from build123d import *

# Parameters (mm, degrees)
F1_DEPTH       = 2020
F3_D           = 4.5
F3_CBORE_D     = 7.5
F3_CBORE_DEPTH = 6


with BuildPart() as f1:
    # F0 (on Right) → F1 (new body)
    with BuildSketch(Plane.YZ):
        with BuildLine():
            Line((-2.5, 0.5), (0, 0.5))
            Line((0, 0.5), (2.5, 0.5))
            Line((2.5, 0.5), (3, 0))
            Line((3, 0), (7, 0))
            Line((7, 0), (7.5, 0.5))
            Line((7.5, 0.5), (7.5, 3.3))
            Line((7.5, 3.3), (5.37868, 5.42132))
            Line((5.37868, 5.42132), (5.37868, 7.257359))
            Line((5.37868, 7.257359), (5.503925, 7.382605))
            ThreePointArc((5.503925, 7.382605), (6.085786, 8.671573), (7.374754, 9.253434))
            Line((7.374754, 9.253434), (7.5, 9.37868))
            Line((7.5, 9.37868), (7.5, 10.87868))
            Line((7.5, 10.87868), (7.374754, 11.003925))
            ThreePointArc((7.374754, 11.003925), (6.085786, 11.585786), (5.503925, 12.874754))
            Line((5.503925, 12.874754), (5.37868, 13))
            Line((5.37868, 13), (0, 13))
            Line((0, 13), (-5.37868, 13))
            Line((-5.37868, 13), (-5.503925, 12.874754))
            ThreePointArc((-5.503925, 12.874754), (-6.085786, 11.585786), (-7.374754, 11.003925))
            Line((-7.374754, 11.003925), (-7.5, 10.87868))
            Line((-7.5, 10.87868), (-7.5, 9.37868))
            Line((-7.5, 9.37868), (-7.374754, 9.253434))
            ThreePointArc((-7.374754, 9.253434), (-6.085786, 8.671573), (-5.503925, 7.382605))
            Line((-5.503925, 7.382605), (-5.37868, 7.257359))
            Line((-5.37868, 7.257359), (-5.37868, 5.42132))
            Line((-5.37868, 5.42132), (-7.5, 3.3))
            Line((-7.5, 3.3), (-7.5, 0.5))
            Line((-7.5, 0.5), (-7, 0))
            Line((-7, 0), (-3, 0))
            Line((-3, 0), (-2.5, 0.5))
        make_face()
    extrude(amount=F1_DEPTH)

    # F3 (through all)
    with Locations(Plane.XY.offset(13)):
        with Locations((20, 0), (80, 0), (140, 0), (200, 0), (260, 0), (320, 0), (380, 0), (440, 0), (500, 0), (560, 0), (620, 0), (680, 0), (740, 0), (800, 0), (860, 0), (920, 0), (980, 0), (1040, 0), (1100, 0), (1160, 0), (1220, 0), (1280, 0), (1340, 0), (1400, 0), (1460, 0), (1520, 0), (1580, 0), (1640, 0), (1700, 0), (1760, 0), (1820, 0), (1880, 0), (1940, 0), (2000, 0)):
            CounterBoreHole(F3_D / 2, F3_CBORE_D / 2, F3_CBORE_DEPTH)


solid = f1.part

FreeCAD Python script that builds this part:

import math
import FreeCAD as App
import Part
import Sketcher

V = App.Vector

doc = App.newDocument("Part")
body = doc.addObject("PartDesign::Body", "Body")

sketch1 = body.newObject("Sketcher::SketchObject", "Sketch")
sketch1.AttachmentSupport = (doc.getObject("YZ_Plane"), [""])
sketch1.MapMode = "FlatFace"
sketch1.addGeometry([
    Part.LineSegment(V(-2.5, 0.5, 0), V(2.5, 0.5, 0)),
    Part.LineSegment(V(2.5, 0.5, 0), V(3, 0, 0)),
    Part.LineSegment(V(3, 0, 0), V(7, 0, 0)),
    Part.LineSegment(V(7, 0, 0), V(7.5, 0.5, 0)),
    Part.LineSegment(V(7.5, 0.5, 0), V(7.5, 3.3, 0)),
    Part.LineSegment(V(7.5, 3.3, 0), V(5.38, 5.42, 0)),
    Part.LineSegment(V(5.38, 5.42, 0), V(5.38, 7.26, 0)),
    Part.LineSegment(V(5.38, 7.26, 0), V(5.5, 7.38, 0)),
    Part.ArcOfCircle(Part.Circle(V(7.5, 7.26, 0), V(0, 0, 1), 2), math.radians(94), math.radians(176)),
    Part.LineSegment(V(7.37, 9.25, 0), V(7.5, 9.38, 0)),
    Part.LineSegment(V(7.5, 9.38, 0), V(7.5, 10.88, 0)),
    Part.LineSegment(V(7.5, 10.88, 0), V(7.37, 11, 0)),
    Part.ArcOfCircle(Part.Circle(V(7.5, 13, 0), V(0, 0, 1), 2), math.radians(-176), math.radians(-94)),
    Part.LineSegment(V(5.5, 12.87, 0), V(5.38, 13, 0)),
    Part.LineSegment(V(5.38, 13, 0), V(-5.38, 13, 0)),
    Part.LineSegment(V(-5.38, 13, 0), V(-5.5, 12.87, 0)),
    Part.ArcOfCircle(Part.Circle(V(-7.5, 13, 0), V(0, 0, 1), 2), math.radians(-86), math.radians(-4)),
    Part.LineSegment(V(-7.37, 11, 0), V(-7.5, 10.88, 0)),
    Part.LineSegment(V(-7.5, 10.88, 0), V(-7.5, 9.38, 0)),
    Part.LineSegment(V(-7.5, 9.38, 0), V(-7.37, 9.25, 0)),
    Part.ArcOfCircle(Part.Circle(V(-7.5, 7.26, 0), V(0, 0, 1), 2), math.radians(4), math.radians(86)),
    Part.LineSegment(V(-5.5, 7.38, 0), V(-5.38, 7.26, 0)),
    Part.LineSegment(V(-5.38, 7.26, 0), V(-5.38, 5.42, 0)),
    Part.LineSegment(V(-5.38, 5.42, 0), V(-7.5, 3.3, 0)),
    Part.LineSegment(V(-7.5, 3.3, 0), V(-7.5, 0.5, 0)),
    Part.LineSegment(V(-7.5, 0.5, 0), V(-7, 0, 0)),
    Part.LineSegment(V(-7, 0, 0), V(-3, 0, 0)),
    Part.LineSegment(V(-3, 0, 0), V(-2.5, 0.5, 0)),
], False)
sketch1.addConstraint([
    Sketcher.Constraint("Coincident", 0, 2, 1, 1),
    Sketcher.Constraint("Coincident", 1, 2, 2, 1),
    Sketcher.Constraint("Coincident", 2, 2, 3, 1),
    Sketcher.Constraint("Coincident", 3, 2, 4, 1),
    Sketcher.Constraint("Coincident", 4, 2, 5, 1),
    Sketcher.Constraint("Coincident", 5, 2, 6, 1),
    Sketcher.Constraint("Coincident", 6, 2, 7, 1),
    Sketcher.Constraint("Coincident", 7, 2, 8, 2),
    Sketcher.Constraint("Coincident", 8, 1, 9, 1),
    Sketcher.Constraint("Coincident", 9, 2, 10, 1),
    Sketcher.Constraint("Coincident", 10, 2, 11, 1),
    Sketcher.Constraint("Coincident", 11, 2, 12, 2),
    Sketcher.Constraint("Coincident", 12, 1, 13, 1),
    Sketcher.Constraint("Coincident", 13, 2, 14, 1),
    Sketcher.Constraint("Coincident", 14, 2, 15, 1),
    Sketcher.Constraint("Coincident", 15, 2, 16, 2),
    Sketcher.Constraint("Coincident", 16, 1, 17, 1),
    Sketcher.Constraint("Coincident", 17, 2, 18, 1),
    Sketcher.Constraint("Coincident", 18, 2, 19, 1),
    Sketcher.Constraint("Coincident", 19, 2, 20, 2),
    Sketcher.Constraint("Coincident", 20, 1, 21, 1),
    Sketcher.Constraint("Coincident", 21, 2, 22, 1),
    Sketcher.Constraint("Coincident", 22, 2, 23, 1),
    Sketcher.Constraint("Coincident", 23, 2, 24, 1),
    Sketcher.Constraint("Coincident", 24, 2, 25, 1),
    Sketcher.Constraint("Coincident", 25, 2, 26, 1),
    Sketcher.Constraint("Coincident", 26, 2, 27, 1),
    Sketcher.Constraint("Coincident", 27, 2, 0, 1),
    Sketcher.Constraint("Horizontal", 0),
    Sketcher.Constraint("Horizontal", 2),
    Sketcher.Constraint("Vertical", 4),
    Sketcher.Constraint("Vertical", 6),
    Sketcher.Constraint("Vertical", 10),
    Sketcher.Constraint("Horizontal", 14),
    Sketcher.Constraint("Vertical", 18),
    Sketcher.Constraint("Vertical", 22),
    Sketcher.Constraint("Vertical", 24),
    Sketcher.Constraint("Horizontal", 26),
    Sketcher.Constraint("Equal", 8, 12),
    Sketcher.Constraint("Equal", 12, 16),
    Sketcher.Constraint("Equal", 16, 20),
    Sketcher.Constraint("Symmetric", 2, 2, 25, 2, -1, 1),
    Sketcher.Constraint("Symmetric", 12, 3, 16, 3, -2),
    Sketcher.Constraint("Symmetric", 8, 3, 20, 3, -2),
    Sketcher.Constraint("Symmetric", 10, 2, 17, 2, -2),
    Sketcher.Constraint("Symmetric", 6, 2, 21, 2, -2),
    Sketcher.Constraint("Symmetric", 4, 2, 23, 2, -2),
    Sketcher.Constraint("Symmetric", 1, 2, 26, 2, -2),
    Sketcher.Constraint("Perpendicular", 1, 3),
    Sketcher.Constraint("Perpendicular", 3, 5),
    Sketcher.Constraint("Perpendicular", 5, 9),
    Sketcher.Constraint("Perpendicular", 7, 11),
    Sketcher.Constraint("Perpendicular", 11, 15),
    Sketcher.Constraint("Perpendicular", 13, 17),
    Sketcher.Constraint("Perpendicular", 9, 19),
    Sketcher.Constraint("Perpendicular", 17, 21),
    Sketcher.Constraint("Perpendicular", 19, 23),
    Sketcher.Constraint("Perpendicular", 23, 25),
    Sketcher.Constraint("Perpendicular", 25, 27),
    Sketcher.Constraint("Horizontal", 0, 2, 3, 2),
    Sketcher.Constraint("Horizontal", 20, 3, 6, 2),
    Sketcher.Constraint("Horizontal", 16, 3, 13, 2),
    Sketcher.Constraint("Horizontal", 12, 1, 15, 2),
    Sketcher.Constraint("Horizontal", 11, 2, 16, 1),
    Sketcher.Constraint("Horizontal", 9, 2, 18, 2),
    Sketcher.Constraint("Horizontal", 8, 1, 19, 2),
    Sketcher.Constraint("Vertical", 8, 3, 12, 3),
    Sketcher.Constraint("Vertical", 12, 3, 3, 2),
    Sketcher.Constraint("Vertical", 4, 2, 9, 2),
    Sketcher.Constraint("Vertical", 8, 1, 11, 2),
    Sketcher.Constraint("Vertical", 7, 2, 12, 1),
    Sketcher.Constraint("Equal", 7, 9),
    Sketcher.Constraint("Equal", 9, 11),
    Sketcher.Constraint("Radius", 8, 2.0),
    Sketcher.Constraint("DistanceX", 0, 1, 0, 2, 5.0),
    Sketcher.Constraint("DistanceX", 2, 1, 2, 2, 4.0),
    Sketcher.Constraint("Distance", 5, 3.0),
    Sketcher.Constraint("DistanceY", 4, 1, 4, 2, 2.8),
    Sketcher.Constraint("DistanceY", 10, 1, 10, 2, 1.5),
    Sketcher.Constraint("DistanceY", -1, 1, 12, 3, 13.0),
    Sketcher.Constraint("DistanceX", -1, 1, 1, 2, 3.0),
])
pad1 = body.newObject("PartDesign::Pad", "Pad")
pad1.Profile = sketch1
pad1.Length = 2020

sketch2 = body.newObject("Sketcher::SketchObject", "Sketch001")
sketch2.AttachmentSupport = (doc.getObject("XY_Plane"), [""])
sketch2.MapMode = "FlatFace"
sketch2.AttachmentOffset = App.Placement(V(0, 0, 13), App.Rotation())
sketch2.addGeometry([
    Part.Circle(V(20, 0, 0), V(0, 0, 1), 2.2),
    Part.Circle(V(80, 0, 0), V(0, 0, 1), 2.2),
    Part.Circle(V(140, 0, 0), V(0, 0, 1), 2.2),
    Part.Circle(V(200, 0, 0), V(0, 0, 1), 2.2),
    Part.Circle(V(260, 0, 0), V(0, 0, 1), 2.2),
    Part.Circle(V(320, 0, 0), V(0, 0, 1), 2.2),
    Part.Circle(V(380, 0, 0), V(0, 0, 1), 2.2),
    Part.Circle(V(440, 0, 0), V(0, 0, 1), 2.2),
    Part.Circle(V(500, 0, 0), V(0, 0, 1), 2.2),
    Part.Circle(V(560, 0, 0), V(0, 0, 1), 2.2),
    Part.Circle(V(620, 0, 0), V(0, 0, 1), 2.2),
    Part.Circle(V(680, 0, 0), V(0, 0, 1), 2.2),
    Part.Circle(V(740, 0, 0), V(0, 0, 1), 2.2),
    Part.Circle(V(800, 0, 0), V(0, 0, 1), 2.2),
    Part.Circle(V(860, 0, 0), V(0, 0, 1), 2.2),
    Part.Circle(V(920, 0, 0), V(0, 0, 1), 2.2),
    Part.Circle(V(980, 0, 0), V(0, 0, 1), 2.2),
    Part.Circle(V(1040, 0, 0), V(0, 0, 1), 2.2),
    Part.Circle(V(1100, 0, 0), V(0, 0, 1), 2.2),
    Part.Circle(V(1160, 0, 0), V(0, 0, 1), 2.2),
    Part.Circle(V(1220, 0, 0), V(0, 0, 1), 2.2),
    Part.Circle(V(1280, 0, 0), V(0, 0, 1), 2.2),
    Part.Circle(V(1340, 0, 0), V(0, 0, 1), 2.2),
    Part.Circle(V(1400, 0, 0), V(0, 0, 1), 2.2),
    Part.Circle(V(1460, 0, 0), V(0, 0, 1), 2.2),
    Part.Circle(V(1520, 0, 0), V(0, 0, 1), 2.2),
    Part.Circle(V(1580, 0, 0), V(0, 0, 1), 2.2),
    Part.Circle(V(1640, 0, 0), V(0, 0, 1), 2.2),
    Part.Circle(V(1700, 0, 0), V(0, 0, 1), 2.2),
    Part.Circle(V(1760, 0, 0), V(0, 0, 1), 2.2),
    Part.Circle(V(1820, 0, 0), V(0, 0, 1), 2.2),
    Part.Circle(V(1880, 0, 0), V(0, 0, 1), 2.2),
    Part.Circle(V(1940, 0, 0), V(0, 0, 1), 2.2),
    Part.Circle(V(2000, 0, 0), V(0, 0, 1), 2.2),
], False)
sketch2.addConstraint([
    Sketcher.Constraint("Equal", 0, 1),
    Sketcher.Constraint("Equal", 1, 2),
    Sketcher.Constraint("Equal", 2, 3),
    Sketcher.Constraint("Equal", 3, 4),
    Sketcher.Constraint("Equal", 4, 5),
    Sketcher.Constraint("Equal", 5, 6),
    Sketcher.Constraint("Equal", 6, 7),
    Sketcher.Constraint("Equal", 7, 8),
    Sketcher.Constraint("Equal", 8, 9),
    Sketcher.Constraint("Equal", 9, 10),
    Sketcher.Constraint("Equal", 10, 11),
    Sketcher.Constraint("Equal", 11, 12),
    Sketcher.Constraint("Equal", 12, 13),
    Sketcher.Constraint("Equal", 13, 14),
    Sketcher.Constraint("Equal", 14, 15),
    Sketcher.Constraint("Equal", 15, 16),
    Sketcher.Constraint("Equal", 16, 17),
    Sketcher.Constraint("Equal", 17, 18),
    Sketcher.Constraint("Equal", 18, 19),
    Sketcher.Constraint("Equal", 19, 20),
    Sketcher.Constraint("Equal", 20, 21),
    Sketcher.Constraint("Equal", 21, 22),
    Sketcher.Constraint("Equal", 22, 23),
    Sketcher.Constraint("Equal", 23, 24),
    Sketcher.Constraint("Equal", 24, 25),
    Sketcher.Constraint("Equal", 25, 26),
    Sketcher.Constraint("Equal", 26, 27),
    Sketcher.Constraint("Equal", 27, 28),
    Sketcher.Constraint("Equal", 28, 29),
    Sketcher.Constraint("Equal", 29, 30),
    Sketcher.Constraint("Equal", 30, 31),
    Sketcher.Constraint("Equal", 31, 32),
    Sketcher.Constraint("Equal", 32, 33),
    Sketcher.Constraint("PointOnObject", 0, 3, -1),
    Sketcher.Constraint("PointOnObject", 1, 3, -1),
    Sketcher.Constraint("PointOnObject", 2, 3, -1),
    Sketcher.Constraint("PointOnObject", 3, 3, -1),
    Sketcher.Constraint("PointOnObject", 4, 3, -1),
    Sketcher.Constraint("PointOnObject", 5, 3, -1),
    Sketcher.Constraint("PointOnObject", 6, 3, -1),
    Sketcher.Constraint("PointOnObject", 7, 3, -1),
    Sketcher.Constraint("PointOnObject", 8, 3, -1),
    Sketcher.Constraint("PointOnObject", 9, 3, -1),
    Sketcher.Constraint("PointOnObject", 10, 3, -1),
    Sketcher.Constraint("PointOnObject", 11, 3, -1),
    Sketcher.Constraint("PointOnObject", 12, 3, -1),
    Sketcher.Constraint("PointOnObject", 13, 3, -1),
    Sketcher.Constraint("PointOnObject", 14, 3, -1),
    Sketcher.Constraint("PointOnObject", 15, 3, -1),
    Sketcher.Constraint("PointOnObject", 16, 3, -1),
    Sketcher.Constraint("PointOnObject", 17, 3, -1),
    Sketcher.Constraint("PointOnObject", 18, 3, -1),
    Sketcher.Constraint("PointOnObject", 19, 3, -1),
    Sketcher.Constraint("PointOnObject", 20, 3, -1),
    Sketcher.Constraint("PointOnObject", 21, 3, -1),
    Sketcher.Constraint("PointOnObject", 22, 3, -1),
    Sketcher.Constraint("PointOnObject", 23, 3, -1),
    Sketcher.Constraint("PointOnObject", 24, 3, -1),
    Sketcher.Constraint("PointOnObject", 25, 3, -1),
    Sketcher.Constraint("PointOnObject", 26, 3, -1),
    Sketcher.Constraint("PointOnObject", 27, 3, -1),
    Sketcher.Constraint("PointOnObject", 28, 3, -1),
    Sketcher.Constraint("PointOnObject", 29, 3, -1),
    Sketcher.Constraint("PointOnObject", 30, 3, -1),
    Sketcher.Constraint("PointOnObject", 31, 3, -1),
    Sketcher.Constraint("PointOnObject", 32, 3, -1),
    Sketcher.Constraint("PointOnObject", 33, 3, -1),
    Sketcher.Constraint("Diameter", 0, 4.5),
    Sketcher.Constraint("DistanceX", -1, 1, 0, 3, 20.0),
    Sketcher.Constraint("DistanceX", -1, 1, 1, 3, 80.0),
    Sketcher.Constraint("DistanceX", -1, 1, 2, 3, 140.0),
    Sketcher.Constraint("DistanceX", -1, 1, 3, 3, 200.0),
    Sketcher.Constraint("DistanceX", -1, 1, 4, 3, 260.0),
    Sketcher.Constraint("DistanceX", -1, 1, 5, 3, 320.0),
    Sketcher.Constraint("DistanceX", -1, 1, 6, 3, 380.0),
    Sketcher.Constraint("DistanceX", -1, 1, 7, 3, 440.0),
    Sketcher.Constraint("DistanceX", -1, 1, 8, 3, 500.0),
    Sketcher.Constraint("DistanceX", -1, 1, 9, 3, 560.0),
    Sketcher.Constraint("DistanceX", -1, 1, 10, 3, 620.0),
    Sketcher.Constraint("DistanceX", -1, 1, 11, 3, 680.0),
    Sketcher.Constraint("DistanceX", -1, 1, 12, 3, 740.0),
    Sketcher.Constraint("DistanceX", -1, 1, 13, 3, 800.0),
    Sketcher.Constraint("DistanceX", -1, 1, 14, 3, 860.0),
    Sketcher.Constraint("DistanceX", -1, 1, 15, 3, 920.0),
    Sketcher.Constraint("DistanceX", -1, 1, 16, 3, 980.0),
    Sketcher.Constraint("DistanceX", -1, 1, 17, 3, 1040.0),
    Sketcher.Constraint("DistanceX", -1, 1, 18, 3, 1100.0),
    Sketcher.Constraint("DistanceX", -1, 1, 19, 3, 1160.0),
    Sketcher.Constraint("DistanceX", -1, 1, 20, 3, 1220.0),
    Sketcher.Constraint("DistanceX", -1, 1, 21, 3, 1280.0),
    Sketcher.Constraint("DistanceX", -1, 1, 22, 3, 1340.0),
    Sketcher.Constraint("DistanceX", -1, 1, 23, 3, 1400.0),
    Sketcher.Constraint("DistanceX", -1, 1, 24, 3, 1460.0),
    Sketcher.Constraint("DistanceX", -1, 1, 25, 3, 1520.0),
    Sketcher.Constraint("DistanceX", -1, 1, 26, 3, 1580.0),
    Sketcher.Constraint("DistanceX", -1, 1, 27, 3, 1640.0),
    Sketcher.Constraint("DistanceX", -1, 1, 28, 3, 1700.0),
    Sketcher.Constraint("DistanceX", -1, 1, 29, 3, 1760.0),
    Sketcher.Constraint("DistanceX", -1, 1, 30, 3, 1820.0),
    Sketcher.Constraint("DistanceX", -1, 1, 31, 3, 1880.0),
    Sketcher.Constraint("DistanceX", -1, 1, 32, 3, 1940.0),
    Sketcher.Constraint("DistanceX", -1, 1, 33, 3, 2000.0),
])
doc.recompute()
hole = body.newObject("PartDesign::Hole", "Hole")
hole.Profile = sketch2
hole.ThreadType = "None"
hole.Diameter = 4.5
hole.DepthType = "ThroughAll"
hole.HoleCutType = "Counterbore"
hole.HoleCutDiameter = 7.5
hole.HoleCutDepth = 6

doc.recompute()
